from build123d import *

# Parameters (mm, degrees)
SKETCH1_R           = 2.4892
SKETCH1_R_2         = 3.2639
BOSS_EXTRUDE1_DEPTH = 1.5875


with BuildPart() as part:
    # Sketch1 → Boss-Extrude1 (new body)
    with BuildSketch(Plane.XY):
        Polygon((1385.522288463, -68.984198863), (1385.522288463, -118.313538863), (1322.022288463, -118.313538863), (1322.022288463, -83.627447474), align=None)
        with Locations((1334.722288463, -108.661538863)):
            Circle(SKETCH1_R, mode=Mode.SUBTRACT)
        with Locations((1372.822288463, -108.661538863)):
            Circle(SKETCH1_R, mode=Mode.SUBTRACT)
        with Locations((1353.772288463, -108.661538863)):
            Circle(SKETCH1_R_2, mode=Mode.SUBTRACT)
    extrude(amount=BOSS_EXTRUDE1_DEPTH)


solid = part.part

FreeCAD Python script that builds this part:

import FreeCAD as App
import Part
import Sketcher

V = App.Vector
Q = App.Units.Quantity

doc = App.newDocument("Part")
body = doc.addObject("PartDesign::Body", "Body")

# Sketch on XY plane
sketch1 = doc.addObject("Sketcher::SketchObject", "Sketch")
body.addObject(sketch1)
sketch1.AttachmentSupport = (doc.XY_Plane, [""])
sketch1.MapMode = "FlatFace"
sketch1.addGeometry([
    Part.LineSegment(V(1385.5, -118.3, 0), V(1385.5, -69, 0)),  # 0
    Part.LineSegment(V(1385.5, -69, 0), V(1322, -83.6, 0)),  # 1
    Part.LineSegment(V(1322, -83.6, 0), V(1322, -118.3, 0)),  # 2
    Part.LineSegment(V(1322, -118.3, 0), V(1385.5, -118.3, 0)),  # 3
    Part.Circle(V(1372.8, -108.7, 0), V(0, 0, 1), 2.5),  # 4
    Part.Circle(V(1353.8, -108.7, 0), V(0, 0, 1), 3.3),  # 5
    Part.Circle(V(1334.7, -108.7, 0), V(0, 0, 1), 2.5),  # 6
], False)
sketch1.addConstraint([
    Sketcher.Constraint("Coincident", 0, 2, 1, 1),
    Sketcher.Constraint("Coincident", 1, 2, 2, 1),
    Sketcher.Constraint("Coincident", 2, 2, 3, 1),
    Sketcher.Constraint("Coincident", 3, 2, 0, 1),
    Sketcher.Constraint("Vertical", 0),
    Sketcher.Constraint("Vertical", 2),
    Sketcher.Constraint("Horizontal", 3),
    Sketcher.Constraint("Equal", 4, 6),
    Sketcher.Constraint("Horizontal", 4, 3, 5, 3),
    Sketcher.Constraint("Horizontal", 5, 3, 6, 3),
    Sketcher.Constraint("Diameter", 4, Q("0.196 in")),
    Sketcher.Constraint("Diameter", 5, Q("0.257 in")),
    Sketcher.Constraint("DistanceX", 3, 1, 3, 2, Q("2.5 in")),
    Sketcher.Constraint("DistanceX", 6, 3, 0, 2, Q("2 in")),
    Sketcher.Constraint("DistanceX", 1, 2, 4, 3, Q("2 in")),
    Sketcher.Constraint("DistanceX", 5, 3, 4, 3, Q("0.75 in")),
    Sketcher.Constraint("DistanceY", 2, 2, 6, 3, Q("0.38 in")),
    Sketcher.Constraint("DistanceY", 0, 1, 0, 2, Q("1.9421 in")),
    Sketcher.Constraint("DistanceY", 2, 2, 2, 1, Q("34.686091 mm")),
    Sketcher.Constraint("DistanceY", 0, 2, -1, 1, Q("68.984199 mm")),
    Sketcher.Constraint("DistanceX", -1, 1, 4, 3, Q("1372.822288 mm")),
])
pad1 = doc.addObject("PartDesign::Pad", "Pad")
body.addObject(pad1)
pad1.Profile = sketch1
pad1.Length = Q("0.0625 in")

doc.recompute()
